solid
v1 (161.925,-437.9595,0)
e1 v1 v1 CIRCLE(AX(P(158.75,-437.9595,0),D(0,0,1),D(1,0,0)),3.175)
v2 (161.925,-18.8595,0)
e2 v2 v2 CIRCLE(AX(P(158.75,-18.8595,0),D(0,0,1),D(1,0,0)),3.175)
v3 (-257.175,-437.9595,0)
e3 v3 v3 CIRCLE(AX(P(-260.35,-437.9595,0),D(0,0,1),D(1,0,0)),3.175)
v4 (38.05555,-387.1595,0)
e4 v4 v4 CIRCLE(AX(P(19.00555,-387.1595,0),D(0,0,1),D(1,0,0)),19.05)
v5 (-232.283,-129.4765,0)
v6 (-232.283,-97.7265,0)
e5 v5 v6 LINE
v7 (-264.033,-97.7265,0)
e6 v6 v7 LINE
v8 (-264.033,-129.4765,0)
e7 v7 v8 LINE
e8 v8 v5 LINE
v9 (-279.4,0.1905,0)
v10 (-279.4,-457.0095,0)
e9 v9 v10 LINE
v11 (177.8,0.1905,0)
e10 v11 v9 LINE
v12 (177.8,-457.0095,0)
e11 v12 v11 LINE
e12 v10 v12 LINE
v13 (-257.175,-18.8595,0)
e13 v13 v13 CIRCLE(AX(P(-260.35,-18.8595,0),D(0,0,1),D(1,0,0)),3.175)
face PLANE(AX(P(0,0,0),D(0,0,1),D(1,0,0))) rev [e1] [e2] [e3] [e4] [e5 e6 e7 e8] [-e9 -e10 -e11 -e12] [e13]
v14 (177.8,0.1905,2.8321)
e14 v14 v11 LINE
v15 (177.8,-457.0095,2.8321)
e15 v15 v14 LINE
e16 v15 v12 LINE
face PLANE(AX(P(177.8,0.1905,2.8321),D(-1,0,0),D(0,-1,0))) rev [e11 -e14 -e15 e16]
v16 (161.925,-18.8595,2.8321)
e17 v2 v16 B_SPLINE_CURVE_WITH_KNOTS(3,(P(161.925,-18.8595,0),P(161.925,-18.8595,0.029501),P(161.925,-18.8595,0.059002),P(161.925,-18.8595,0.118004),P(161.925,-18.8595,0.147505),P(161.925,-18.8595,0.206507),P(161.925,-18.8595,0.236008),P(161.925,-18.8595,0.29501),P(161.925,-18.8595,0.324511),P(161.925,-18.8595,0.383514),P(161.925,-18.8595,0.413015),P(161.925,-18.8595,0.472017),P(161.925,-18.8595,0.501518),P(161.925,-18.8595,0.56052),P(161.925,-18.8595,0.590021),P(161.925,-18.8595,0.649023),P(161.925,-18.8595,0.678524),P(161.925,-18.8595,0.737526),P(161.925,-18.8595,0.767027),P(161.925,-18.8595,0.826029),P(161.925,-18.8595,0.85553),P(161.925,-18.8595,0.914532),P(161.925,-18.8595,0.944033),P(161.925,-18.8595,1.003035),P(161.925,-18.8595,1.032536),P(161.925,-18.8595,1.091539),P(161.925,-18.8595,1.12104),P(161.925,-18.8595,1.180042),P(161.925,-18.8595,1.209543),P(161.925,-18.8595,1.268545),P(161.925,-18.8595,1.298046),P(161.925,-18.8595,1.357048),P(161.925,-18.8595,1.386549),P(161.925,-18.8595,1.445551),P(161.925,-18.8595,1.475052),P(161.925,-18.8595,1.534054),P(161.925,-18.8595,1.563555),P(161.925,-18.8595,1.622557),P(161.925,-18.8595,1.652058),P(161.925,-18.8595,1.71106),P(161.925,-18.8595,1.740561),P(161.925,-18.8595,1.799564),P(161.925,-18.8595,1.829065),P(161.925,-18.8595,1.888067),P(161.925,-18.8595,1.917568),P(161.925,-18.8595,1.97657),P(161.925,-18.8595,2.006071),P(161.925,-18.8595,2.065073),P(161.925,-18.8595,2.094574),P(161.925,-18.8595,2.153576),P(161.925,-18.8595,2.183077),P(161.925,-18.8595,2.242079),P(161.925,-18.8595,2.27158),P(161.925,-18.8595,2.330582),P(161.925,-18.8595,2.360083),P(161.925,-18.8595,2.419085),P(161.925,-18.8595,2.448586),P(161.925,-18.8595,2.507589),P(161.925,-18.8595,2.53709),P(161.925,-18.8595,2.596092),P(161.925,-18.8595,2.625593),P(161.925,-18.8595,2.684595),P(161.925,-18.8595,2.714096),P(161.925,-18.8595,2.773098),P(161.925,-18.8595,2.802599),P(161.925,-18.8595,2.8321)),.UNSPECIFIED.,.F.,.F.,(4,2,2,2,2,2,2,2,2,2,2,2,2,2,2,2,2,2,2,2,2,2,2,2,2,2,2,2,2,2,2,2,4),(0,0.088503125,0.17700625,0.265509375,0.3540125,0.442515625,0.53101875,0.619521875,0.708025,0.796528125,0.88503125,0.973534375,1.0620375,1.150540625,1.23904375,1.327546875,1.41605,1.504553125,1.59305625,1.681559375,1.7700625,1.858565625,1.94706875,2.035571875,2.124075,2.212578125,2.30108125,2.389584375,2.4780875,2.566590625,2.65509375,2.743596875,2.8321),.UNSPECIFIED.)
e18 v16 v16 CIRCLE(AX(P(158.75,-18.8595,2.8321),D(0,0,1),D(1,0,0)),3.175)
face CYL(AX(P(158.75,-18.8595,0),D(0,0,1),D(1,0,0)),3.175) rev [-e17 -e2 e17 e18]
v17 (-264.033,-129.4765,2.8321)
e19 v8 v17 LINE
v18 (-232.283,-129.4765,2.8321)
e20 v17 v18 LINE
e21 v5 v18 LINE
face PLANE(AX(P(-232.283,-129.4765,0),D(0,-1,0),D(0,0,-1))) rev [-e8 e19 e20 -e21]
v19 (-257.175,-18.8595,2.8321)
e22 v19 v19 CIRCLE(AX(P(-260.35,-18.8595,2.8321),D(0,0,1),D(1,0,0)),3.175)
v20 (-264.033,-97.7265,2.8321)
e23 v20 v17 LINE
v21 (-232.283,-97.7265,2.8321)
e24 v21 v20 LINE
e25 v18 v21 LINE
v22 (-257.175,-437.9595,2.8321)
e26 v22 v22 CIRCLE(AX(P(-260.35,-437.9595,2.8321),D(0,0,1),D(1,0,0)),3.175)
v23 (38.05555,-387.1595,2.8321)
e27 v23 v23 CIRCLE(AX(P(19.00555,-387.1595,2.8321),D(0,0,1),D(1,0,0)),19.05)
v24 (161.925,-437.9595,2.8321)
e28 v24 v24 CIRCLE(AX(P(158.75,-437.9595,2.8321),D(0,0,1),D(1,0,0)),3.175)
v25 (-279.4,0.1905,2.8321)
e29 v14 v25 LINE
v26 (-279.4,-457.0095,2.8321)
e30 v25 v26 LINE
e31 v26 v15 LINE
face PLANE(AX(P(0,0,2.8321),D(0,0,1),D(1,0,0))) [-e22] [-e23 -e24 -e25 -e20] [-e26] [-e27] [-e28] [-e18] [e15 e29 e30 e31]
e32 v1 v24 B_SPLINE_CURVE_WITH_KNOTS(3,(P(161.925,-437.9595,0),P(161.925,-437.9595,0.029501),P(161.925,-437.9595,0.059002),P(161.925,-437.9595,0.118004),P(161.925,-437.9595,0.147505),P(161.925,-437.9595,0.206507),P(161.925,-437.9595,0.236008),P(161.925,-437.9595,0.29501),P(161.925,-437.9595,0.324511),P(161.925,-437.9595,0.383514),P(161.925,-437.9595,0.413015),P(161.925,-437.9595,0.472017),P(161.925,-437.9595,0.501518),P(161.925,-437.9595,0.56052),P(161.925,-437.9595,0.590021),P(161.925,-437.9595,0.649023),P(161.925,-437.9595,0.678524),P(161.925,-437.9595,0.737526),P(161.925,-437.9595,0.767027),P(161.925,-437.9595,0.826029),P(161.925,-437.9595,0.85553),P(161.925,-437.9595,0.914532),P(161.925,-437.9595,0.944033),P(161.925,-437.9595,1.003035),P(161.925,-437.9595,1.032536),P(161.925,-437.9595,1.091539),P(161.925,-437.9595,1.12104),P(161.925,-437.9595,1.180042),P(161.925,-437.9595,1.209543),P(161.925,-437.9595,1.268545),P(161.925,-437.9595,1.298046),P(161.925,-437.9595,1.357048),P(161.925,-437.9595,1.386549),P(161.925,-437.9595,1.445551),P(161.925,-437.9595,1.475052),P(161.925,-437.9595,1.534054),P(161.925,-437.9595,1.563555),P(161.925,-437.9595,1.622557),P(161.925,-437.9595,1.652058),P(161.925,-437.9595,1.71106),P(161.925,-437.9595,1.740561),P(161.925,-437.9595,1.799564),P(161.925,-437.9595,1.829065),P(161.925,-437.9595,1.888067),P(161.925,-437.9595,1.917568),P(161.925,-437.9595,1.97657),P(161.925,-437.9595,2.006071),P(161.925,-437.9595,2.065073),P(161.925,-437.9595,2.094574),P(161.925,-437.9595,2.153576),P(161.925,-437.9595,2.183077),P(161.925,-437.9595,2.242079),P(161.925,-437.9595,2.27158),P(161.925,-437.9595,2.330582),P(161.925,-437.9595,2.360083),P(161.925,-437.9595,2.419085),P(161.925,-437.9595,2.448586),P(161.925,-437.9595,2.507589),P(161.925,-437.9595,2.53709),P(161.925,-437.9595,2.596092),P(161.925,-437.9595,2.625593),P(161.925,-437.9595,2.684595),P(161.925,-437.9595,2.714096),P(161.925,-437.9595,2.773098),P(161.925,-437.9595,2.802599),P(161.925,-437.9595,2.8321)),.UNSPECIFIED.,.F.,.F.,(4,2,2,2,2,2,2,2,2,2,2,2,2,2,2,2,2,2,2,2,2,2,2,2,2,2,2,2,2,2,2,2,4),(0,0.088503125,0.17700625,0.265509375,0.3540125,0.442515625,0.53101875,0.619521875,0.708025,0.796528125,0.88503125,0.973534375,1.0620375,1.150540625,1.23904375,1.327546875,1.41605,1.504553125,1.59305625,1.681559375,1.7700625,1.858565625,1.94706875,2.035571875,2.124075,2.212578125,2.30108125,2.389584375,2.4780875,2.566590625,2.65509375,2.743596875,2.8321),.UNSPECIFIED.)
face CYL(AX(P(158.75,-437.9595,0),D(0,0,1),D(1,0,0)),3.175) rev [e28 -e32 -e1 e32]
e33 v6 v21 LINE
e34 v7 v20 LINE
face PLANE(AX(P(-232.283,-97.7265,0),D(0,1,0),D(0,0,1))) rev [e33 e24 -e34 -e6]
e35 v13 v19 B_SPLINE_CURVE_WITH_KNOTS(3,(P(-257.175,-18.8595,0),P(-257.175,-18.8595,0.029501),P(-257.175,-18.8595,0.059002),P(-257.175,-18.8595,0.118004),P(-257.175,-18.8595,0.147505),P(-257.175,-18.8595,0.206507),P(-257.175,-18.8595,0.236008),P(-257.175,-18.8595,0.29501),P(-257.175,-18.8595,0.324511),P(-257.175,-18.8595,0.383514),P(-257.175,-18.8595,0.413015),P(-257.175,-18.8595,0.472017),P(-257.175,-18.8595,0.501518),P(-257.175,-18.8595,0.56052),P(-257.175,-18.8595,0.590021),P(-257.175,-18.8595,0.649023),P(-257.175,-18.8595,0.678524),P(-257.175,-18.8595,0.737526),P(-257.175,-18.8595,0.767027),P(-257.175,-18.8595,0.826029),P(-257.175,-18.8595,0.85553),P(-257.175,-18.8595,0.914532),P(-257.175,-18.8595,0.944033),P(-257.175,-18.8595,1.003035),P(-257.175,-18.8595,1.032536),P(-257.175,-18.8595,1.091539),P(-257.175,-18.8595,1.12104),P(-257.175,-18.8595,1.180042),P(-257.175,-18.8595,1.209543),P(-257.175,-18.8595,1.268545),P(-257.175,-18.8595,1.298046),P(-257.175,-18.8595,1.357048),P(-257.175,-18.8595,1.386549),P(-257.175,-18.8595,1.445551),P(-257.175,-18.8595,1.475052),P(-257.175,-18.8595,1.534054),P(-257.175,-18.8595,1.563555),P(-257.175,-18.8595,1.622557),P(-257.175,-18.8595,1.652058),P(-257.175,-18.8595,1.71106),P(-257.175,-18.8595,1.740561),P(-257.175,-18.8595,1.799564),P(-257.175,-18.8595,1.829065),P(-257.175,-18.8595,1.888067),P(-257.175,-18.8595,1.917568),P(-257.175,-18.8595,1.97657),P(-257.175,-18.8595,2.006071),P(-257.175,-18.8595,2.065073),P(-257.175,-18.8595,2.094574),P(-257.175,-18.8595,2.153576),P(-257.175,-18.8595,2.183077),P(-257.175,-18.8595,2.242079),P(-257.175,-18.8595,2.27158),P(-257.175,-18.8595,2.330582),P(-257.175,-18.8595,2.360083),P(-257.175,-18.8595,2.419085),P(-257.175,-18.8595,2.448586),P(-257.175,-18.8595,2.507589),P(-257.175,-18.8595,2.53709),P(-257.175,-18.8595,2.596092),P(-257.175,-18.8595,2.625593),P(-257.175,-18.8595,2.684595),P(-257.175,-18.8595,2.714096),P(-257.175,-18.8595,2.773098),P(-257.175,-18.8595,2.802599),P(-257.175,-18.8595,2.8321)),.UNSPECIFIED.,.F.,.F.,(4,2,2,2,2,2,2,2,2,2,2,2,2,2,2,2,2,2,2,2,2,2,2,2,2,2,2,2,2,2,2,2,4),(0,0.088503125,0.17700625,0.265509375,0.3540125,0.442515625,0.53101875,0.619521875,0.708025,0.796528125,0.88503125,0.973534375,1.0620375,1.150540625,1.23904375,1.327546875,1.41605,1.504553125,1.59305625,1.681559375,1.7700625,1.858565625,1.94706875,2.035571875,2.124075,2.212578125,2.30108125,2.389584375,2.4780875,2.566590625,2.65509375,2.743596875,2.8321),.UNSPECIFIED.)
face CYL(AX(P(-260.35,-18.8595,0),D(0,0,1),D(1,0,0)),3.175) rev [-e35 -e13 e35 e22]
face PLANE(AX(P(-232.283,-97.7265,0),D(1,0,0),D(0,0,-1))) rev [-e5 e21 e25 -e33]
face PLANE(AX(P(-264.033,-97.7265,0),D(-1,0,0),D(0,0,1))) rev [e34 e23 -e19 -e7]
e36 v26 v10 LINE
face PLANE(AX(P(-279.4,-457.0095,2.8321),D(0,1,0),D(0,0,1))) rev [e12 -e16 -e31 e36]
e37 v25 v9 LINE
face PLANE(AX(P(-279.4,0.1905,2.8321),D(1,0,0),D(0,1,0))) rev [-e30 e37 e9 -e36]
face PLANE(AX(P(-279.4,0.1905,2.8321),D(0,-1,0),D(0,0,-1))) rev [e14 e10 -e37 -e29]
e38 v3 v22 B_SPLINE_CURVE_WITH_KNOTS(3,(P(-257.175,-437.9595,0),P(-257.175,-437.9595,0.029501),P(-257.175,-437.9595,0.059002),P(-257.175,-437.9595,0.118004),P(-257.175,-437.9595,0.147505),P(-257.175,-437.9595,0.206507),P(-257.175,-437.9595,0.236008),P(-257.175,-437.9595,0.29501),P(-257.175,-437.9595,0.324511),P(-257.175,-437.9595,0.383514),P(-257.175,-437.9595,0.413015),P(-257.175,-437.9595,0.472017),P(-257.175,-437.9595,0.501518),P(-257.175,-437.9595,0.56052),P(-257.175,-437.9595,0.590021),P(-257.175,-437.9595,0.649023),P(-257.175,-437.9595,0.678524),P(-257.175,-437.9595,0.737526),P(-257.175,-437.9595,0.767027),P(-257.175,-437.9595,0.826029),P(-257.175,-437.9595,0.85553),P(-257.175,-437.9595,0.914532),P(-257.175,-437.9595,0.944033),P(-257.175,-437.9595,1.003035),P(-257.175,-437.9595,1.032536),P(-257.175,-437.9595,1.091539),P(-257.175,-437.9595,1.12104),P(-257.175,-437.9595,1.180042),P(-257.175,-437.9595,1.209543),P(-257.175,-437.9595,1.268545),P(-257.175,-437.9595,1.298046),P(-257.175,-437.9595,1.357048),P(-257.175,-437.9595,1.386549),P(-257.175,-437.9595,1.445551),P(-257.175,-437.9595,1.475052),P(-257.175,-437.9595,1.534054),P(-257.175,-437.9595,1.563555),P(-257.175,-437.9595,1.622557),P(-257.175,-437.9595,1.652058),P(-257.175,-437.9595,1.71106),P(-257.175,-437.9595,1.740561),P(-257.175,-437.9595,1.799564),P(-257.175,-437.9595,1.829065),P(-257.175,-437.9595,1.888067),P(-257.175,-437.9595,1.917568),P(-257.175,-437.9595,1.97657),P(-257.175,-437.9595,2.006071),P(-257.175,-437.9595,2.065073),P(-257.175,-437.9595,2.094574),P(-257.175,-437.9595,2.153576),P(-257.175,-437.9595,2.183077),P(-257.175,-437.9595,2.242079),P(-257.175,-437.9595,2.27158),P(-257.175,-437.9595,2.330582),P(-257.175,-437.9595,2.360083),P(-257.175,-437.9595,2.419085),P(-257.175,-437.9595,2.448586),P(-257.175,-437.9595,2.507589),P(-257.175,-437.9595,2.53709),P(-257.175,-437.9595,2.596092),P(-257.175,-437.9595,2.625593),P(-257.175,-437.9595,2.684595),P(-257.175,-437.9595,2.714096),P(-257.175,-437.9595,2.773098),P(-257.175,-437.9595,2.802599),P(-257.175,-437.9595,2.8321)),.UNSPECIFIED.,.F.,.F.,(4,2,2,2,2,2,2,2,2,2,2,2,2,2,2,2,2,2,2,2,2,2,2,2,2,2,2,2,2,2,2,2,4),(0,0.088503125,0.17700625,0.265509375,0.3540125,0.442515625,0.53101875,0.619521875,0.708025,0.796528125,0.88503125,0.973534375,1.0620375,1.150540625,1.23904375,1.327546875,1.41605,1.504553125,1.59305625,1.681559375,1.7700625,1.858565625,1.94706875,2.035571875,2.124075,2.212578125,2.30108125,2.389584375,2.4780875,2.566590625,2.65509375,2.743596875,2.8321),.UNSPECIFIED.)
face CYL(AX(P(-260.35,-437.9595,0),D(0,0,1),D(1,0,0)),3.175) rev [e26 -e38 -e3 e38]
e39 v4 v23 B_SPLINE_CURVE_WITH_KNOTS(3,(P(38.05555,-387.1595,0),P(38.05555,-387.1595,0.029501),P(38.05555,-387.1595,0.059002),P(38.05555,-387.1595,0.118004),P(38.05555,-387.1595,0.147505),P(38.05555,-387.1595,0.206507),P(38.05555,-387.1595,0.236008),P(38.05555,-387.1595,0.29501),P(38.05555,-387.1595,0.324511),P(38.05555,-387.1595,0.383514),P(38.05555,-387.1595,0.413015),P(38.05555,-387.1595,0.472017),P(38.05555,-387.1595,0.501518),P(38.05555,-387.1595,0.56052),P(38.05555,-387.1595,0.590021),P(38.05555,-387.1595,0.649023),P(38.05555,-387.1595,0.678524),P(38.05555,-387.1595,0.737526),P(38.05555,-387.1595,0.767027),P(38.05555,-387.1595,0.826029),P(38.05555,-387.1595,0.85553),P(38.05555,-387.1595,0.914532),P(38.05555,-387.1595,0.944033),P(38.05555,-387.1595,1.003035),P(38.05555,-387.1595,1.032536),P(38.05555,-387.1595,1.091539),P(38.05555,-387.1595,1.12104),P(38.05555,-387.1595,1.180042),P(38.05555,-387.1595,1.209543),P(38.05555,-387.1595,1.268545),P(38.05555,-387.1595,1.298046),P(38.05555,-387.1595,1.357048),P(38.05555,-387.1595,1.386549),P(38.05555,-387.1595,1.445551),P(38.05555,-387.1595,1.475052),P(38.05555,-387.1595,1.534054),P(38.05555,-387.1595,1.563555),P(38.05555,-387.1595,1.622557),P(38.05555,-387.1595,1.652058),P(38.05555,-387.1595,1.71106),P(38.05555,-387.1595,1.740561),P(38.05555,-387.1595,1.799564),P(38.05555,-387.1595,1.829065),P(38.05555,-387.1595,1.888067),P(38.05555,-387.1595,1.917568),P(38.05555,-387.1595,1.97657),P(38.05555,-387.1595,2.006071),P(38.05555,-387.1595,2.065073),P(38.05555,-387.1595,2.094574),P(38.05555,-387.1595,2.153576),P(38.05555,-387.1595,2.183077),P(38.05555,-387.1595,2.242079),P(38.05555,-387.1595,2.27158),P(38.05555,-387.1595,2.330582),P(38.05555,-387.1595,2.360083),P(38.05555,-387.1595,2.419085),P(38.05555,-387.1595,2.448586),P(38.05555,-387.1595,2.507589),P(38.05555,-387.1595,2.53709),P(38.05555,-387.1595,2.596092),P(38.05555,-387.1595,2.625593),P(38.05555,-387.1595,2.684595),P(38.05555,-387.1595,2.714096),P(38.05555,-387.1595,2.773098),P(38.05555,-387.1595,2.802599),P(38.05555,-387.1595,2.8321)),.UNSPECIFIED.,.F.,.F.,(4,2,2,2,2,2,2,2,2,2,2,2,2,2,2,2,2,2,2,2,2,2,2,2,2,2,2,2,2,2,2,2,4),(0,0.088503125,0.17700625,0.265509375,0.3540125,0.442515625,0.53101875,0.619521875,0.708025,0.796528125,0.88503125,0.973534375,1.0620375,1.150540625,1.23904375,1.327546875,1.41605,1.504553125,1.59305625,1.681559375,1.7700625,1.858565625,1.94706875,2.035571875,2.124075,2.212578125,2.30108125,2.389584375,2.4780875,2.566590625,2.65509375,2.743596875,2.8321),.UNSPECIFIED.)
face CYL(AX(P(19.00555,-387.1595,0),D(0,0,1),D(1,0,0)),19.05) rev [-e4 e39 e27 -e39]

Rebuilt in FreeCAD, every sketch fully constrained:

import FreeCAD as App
import Part
import Sketcher
Q = App.Units.Quantity

doc = App.newDocument("Part")
body = doc.addObject("PartDesign::Body", "Body")

# Sketch on XY plane
sketch1 = doc.addObject("Sketcher::SketchObject", "Sketch")
body.addObject(sketch1)
sketch1.AttachmentSupport = (doc.XY_Plane, [""])
sketch1.MapMode = "FlatFace"
sketch1.addGeometry([
    Part.LineSegment(App.Vector(-279.4, 0.1905, 0), App.Vector(-279.4, -457.0095, 0)),
    Part.LineSegment(App.Vector(-279.4, -457.0095, 0), App.Vector(177.8, -457.0095, 0)),
    Part.LineSegment(App.Vector(177.8, -457.0095, 0), App.Vector(177.8, 0.1905, 0)),
    Part.LineSegment(App.Vector(177.8, 0.1905, 0), App.Vector(-279.4, 0.1905, 0)),
], False)
sketch1.addConstraint([
    Sketcher.Constraint("Coincident", 0, 2, 1, 1),
    Sketcher.Constraint("Coincident", 1, 2, 2, 1),
    Sketcher.Constraint("Coincident", 2, 2, 3, 1),
    Sketcher.Constraint("Coincident", 3, 2, 0, 1),
    Sketcher.Constraint("Vertical", 0),
    Sketcher.Constraint("Horizontal", 1),
    Sketcher.Constraint("Vertical", 2),
    Sketcher.Constraint("Horizontal", 3),
    Sketcher.Constraint("Equal", 3, 0),
    Sketcher.Constraint("DistanceX", 1, 1, 1, 2, Q("18 in")),
    Sketcher.Constraint("DistanceX", 0, 2, -1, 1, Q("11 in")),
    Sketcher.Constraint("DistanceY", 0, 2, -1, 1, Q("17.9925 in")),
])
pad1 = doc.addObject("PartDesign::Pad", "Pad")
body.addObject(pad1)
pad1.Profile = sketch1
pad1.Length = Q("0.1115 in")

# Sketch on XY plane
sketch2 = doc.addObject("Sketcher::SketchObject", "Sketch001")
body.addObject(sketch2)
sketch2.AttachmentSupport = (doc.XY_Plane, [""])
sketch2.MapMode = "FlatFace"
sketch2.AttachmentOffset = App.Placement(App.Vector(0, 0, 0.1115 * 25.4), App.Rotation())
sketch2.addGeometry([
    Part.Circle(App.Vector(-260.35, -18.8595, 0), App.Vector(0, 0, 1), 3.175),  # 0
    Part.Circle(App.Vector(-260.35, -437.9595, 0), App.Vector(0, 0, 1), 3.175),  # 1
    Part.Circle(App.Vector(158.75, -437.9595, 0), App.Vector(0, 0, 1), 3.175),  # 2
    Part.Circle(App.Vector(158.75, -18.8595, 0), App.Vector(0, 0, 1), 3.175),  # 3
    Part.Circle(App.Vector(19.00555, -387.1595, 0), App.Vector(0, 0, 1), 19.05),  # 4
    Part.LineSegment(App.Vector(-264.033, -97.7265, 0), App.Vector(-264.033, -129.4765, 0)),  # 5
    Part.LineSegment(App.Vector(-264.033, -129.4765, 0), App.Vector(-232.283, -129.4765, 0)),  # 6
    Part.LineSegment(App.Vector(-232.283, -129.4765, 0), App.Vector(-232.283, -97.7265, 0)),  # 7
    Part.LineSegment(App.Vector(-232.283, -97.7265, 0), App.Vector(-264.033, -97.7265, 0)),  # 8
], False)
sketch2.addConstraint([
    Sketcher.Constraint("Coincident", 5, 2, 6, 1),
    Sketcher.Constraint("Coincident", 6, 2, 7, 1),
    Sketcher.Constraint("Coincident", 7, 2, 8, 1),
    Sketcher.Constraint("Coincident", 8, 2, 5, 1),
    Sketcher.Constraint("Vertical", 5),
    Sketcher.Constraint("Horizontal", 6),
    Sketcher.Constraint("Vertical", 7),
    Sketcher.Constraint("Horizontal", 8),
    Sketcher.Constraint("Equal", 0, 1),
    Sketcher.Constraint("Equal", 1, 2),
    Sketcher.Constraint("Equal", 2, 3),
    Sketcher.Constraint("Horizontal", 1, 3, 2, 3),
    Sketcher.Constraint("Horizontal", 0, 3, 3, 3),
    Sketcher.Constraint("Vertical", 0, 3, 1, 3),
    Sketcher.Constraint("Vertical", 2, 3, 3, 3),
    Sketcher.Constraint("Equal", 8, 5),
    Sketcher.Constraint("Diameter", 4, Q("1.5 in")),
    Sketcher.Constraint("Diameter", 0, Q("0.25 in")),
    Sketcher.Constraint("DistanceY", 2, 3, 4, 3, Q("2 in")),
    Sketcher.Constraint("DistanceX", 6, 1, 6, 2, Q("1.25 in")),
    Sketcher.Constraint("DistanceY", 1, 3, 0, 3, Q("16.5 in")),
    Sketcher.Constraint("DistanceX", 1, 3, 2, 3, Q("16.5 in")),
    Sketcher.Constraint("DistanceX", 0, 3, -1, 1, Q("10.25 in")),
    Sketcher.Constraint("DistanceX", 5, 2, -1, 1, Q("10.395 in")),
    Sketcher.Constraint("DistanceY", 5, 2, 0, 3, Q("4.355 in")),
    Sketcher.Constraint("DistanceY", 0, 3, -1, 1, Q("0.7425 in")),
    Sketcher.Constraint("DistanceX", -1, 1, 4, 3, Q("19.00555 mm")),
])
pocket1 = doc.addObject("PartDesign::Pocket", "Pocket")
body.addObject(pocket1)
pocket1.Profile = sketch2
pocket1.Type = "ThroughAll"

doc.recompute()
